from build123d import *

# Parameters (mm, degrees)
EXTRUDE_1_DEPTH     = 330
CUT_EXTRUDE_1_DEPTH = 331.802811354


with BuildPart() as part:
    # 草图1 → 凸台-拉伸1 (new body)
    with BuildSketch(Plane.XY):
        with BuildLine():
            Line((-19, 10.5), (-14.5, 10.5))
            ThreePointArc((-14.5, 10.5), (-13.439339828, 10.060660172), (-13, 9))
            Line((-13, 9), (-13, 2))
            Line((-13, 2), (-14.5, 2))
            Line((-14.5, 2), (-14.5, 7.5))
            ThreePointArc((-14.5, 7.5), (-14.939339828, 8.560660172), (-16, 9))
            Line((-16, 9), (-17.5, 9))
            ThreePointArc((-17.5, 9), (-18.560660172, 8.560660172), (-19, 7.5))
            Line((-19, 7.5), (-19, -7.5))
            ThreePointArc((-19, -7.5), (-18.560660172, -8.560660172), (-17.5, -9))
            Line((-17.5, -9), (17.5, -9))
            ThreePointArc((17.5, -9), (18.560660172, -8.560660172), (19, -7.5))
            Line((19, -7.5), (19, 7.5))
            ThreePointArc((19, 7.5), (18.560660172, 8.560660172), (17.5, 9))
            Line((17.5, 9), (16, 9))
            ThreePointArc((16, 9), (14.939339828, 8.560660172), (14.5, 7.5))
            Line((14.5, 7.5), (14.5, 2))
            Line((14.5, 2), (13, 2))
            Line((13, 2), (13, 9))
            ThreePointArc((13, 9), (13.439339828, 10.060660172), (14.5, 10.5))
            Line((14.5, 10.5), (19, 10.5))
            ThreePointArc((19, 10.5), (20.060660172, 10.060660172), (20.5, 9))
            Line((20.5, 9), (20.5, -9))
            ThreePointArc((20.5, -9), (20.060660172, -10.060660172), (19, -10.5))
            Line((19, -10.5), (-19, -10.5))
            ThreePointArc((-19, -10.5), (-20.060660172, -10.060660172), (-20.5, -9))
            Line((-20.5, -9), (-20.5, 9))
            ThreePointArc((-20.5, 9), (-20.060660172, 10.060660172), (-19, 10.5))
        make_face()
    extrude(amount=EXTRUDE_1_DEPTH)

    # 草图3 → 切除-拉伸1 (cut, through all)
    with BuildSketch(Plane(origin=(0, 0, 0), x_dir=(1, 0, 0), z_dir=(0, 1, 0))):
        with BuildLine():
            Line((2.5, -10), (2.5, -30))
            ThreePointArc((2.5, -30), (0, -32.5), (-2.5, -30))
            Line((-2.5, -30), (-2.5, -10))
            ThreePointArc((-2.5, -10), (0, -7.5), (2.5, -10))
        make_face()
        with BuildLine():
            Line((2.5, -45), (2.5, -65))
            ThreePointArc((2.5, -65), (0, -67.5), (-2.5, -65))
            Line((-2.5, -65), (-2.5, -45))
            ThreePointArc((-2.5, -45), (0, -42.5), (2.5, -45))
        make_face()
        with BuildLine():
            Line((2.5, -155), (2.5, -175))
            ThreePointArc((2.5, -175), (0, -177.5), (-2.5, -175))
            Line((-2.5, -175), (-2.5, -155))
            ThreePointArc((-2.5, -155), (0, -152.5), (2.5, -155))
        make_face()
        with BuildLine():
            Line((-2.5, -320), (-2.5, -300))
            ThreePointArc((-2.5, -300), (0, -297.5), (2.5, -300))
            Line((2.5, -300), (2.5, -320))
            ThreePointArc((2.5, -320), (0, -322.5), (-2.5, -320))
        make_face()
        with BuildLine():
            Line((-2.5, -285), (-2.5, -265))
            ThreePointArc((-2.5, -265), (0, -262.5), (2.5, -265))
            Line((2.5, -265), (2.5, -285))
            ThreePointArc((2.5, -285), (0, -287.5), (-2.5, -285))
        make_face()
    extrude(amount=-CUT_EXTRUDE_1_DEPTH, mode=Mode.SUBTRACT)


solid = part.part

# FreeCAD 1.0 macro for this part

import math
import FreeCAD as App
import Part
import Sketcher

doc = App.newDocument("Part")
body = doc.addObject("PartDesign::Body", "Body")

sketch1 = body.newObject("Sketcher::SketchObject", "Sketch")
sketch1.AttachmentSupport = (doc.getObject("XY_Plane"), [""])
sketch1.MapMode = "FlatFace"
sketch1.addGeometry([
    Part.LineSegment(App.Vector(-14.5, 10.5, 0), App.Vector(-19, 10.5, 0)),
    Part.ArcOfCircle(Part.Circle(App.Vector(-19, 9, 0), App.Vector(0, 0, 1), 1.5), math.radians(90), math.radians(180)),
    Part.LineSegment(App.Vector(-20.5, 9, 0), App.Vector(-20.5, -9, 0)),
    Part.ArcOfCircle(Part.Circle(App.Vector(-19, -9, 0), App.Vector(0, 0, 1), 1.5), math.radians(180), math.radians(270)),
    Part.LineSegment(App.Vector(-19, -10.5, 0), App.Vector(19, -10.5, 0)),
    Part.ArcOfCircle(Part.Circle(App.Vector(19, -9, 0), App.Vector(0, 0, 1), 1.5), math.radians(-90), math.radians(0)),
    Part.LineSegment(App.Vector(20.5, -9, 0), App.Vector(20.5, 9, 0)),
    Part.ArcOfCircle(Part.Circle(App.Vector(19, 9, 0), App.Vector(0, 0, 1), 1.5), math.radians(0), math.radians(90)),
    Part.LineSegment(App.Vector(19, 10.5, 0), App.Vector(14.5, 10.5, 0)),
    Part.ArcOfCircle(Part.Circle(App.Vector(14.5, 9, 0), App.Vector(0, 0, 1), 1.5), math.radians(90), math.radians(180)),
    Part.LineSegment(App.Vector(13, 9, 0), App.Vector(13, 2, 0)),
    Part.LineSegment(App.Vector(13, 2, 0), App.Vector(14.5, 2, 0)),
    Part.LineSegment(App.Vector(14.5, 2, 0), App.Vector(14.5, 7.5, 0)),
    Part.ArcOfCircle(Part.Circle(App.Vector(16, 7.5, 0), App.Vector(0, 0, 1), 1.5), math.radians(90), math.radians(180)),
    Part.LineSegment(App.Vector(16, 9, 0), App.Vector(17.5, 9, 0)),
    Part.ArcOfCircle(Part.Circle(App.Vector(17.5, 7.5, 0), App.Vector(0, 0, 1), 1.5), math.radians(0), math.radians(90)),
    Part.LineSegment(App.Vector(19, 7.5, 0), App.Vector(19, -7.5, 0)),
    Part.ArcOfCircle(Part.Circle(App.Vector(17.5, -7.5, 0), App.Vector(0, 0, 1), 1.5), math.radians(-90), math.radians(0)),
    Part.LineSegment(App.Vector(17.5, -9, 0), App.Vector(-17.5, -9, 0)),
    Part.ArcOfCircle(Part.Circle(App.Vector(-17.5, -7.5, 0), App.Vector(0, 0, 1), 1.5), math.radians(180), math.radians(270)),
    Part.LineSegment(App.Vector(-19, -7.5, 0), App.Vector(-19, 7.5, 0)),
    Part.ArcOfCircle(Part.Circle(App.Vector(-17.5, 7.5, 0), App.Vector(0, 0, 1), 1.5), math.radians(90), math.radians(180)),
    Part.LineSegment(App.Vector(-17.5, 9, 0), App.Vector(-16, 9, 0)),
    Part.ArcOfCircle(Part.Circle(App.Vector(-16, 7.5, 0), App.Vector(0, 0, 1), 1.5), math.radians(0), math.radians(90)),
    Part.LineSegment(App.Vector(-14.5, 7.5, 0), App.Vector(-14.5, 2, 0)),
    Part.LineSegment(App.Vector(-14.5, 2, 0), App.Vector(-13, 2, 0)),
    Part.LineSegment(App.Vector(-13, 2, 0), App.Vector(-13, 9, 0)),
    Part.ArcOfCircle(Part.Circle(App.Vector(-14.5, 9, 0), App.Vector(0, 0, 1), 1.5), math.radians(0), math.radians(90)),
], False)
sketch1.addConstraint([
    Sketcher.Constraint("Tangent", 0, 2, 1, 1),
    Sketcher.Constraint("Tangent", 1, 2, 2, 1),
    Sketcher.Constraint("Tangent", 2, 2, 3, 1),
    Sketcher.Constraint("Tangent", 3, 2, 4, 1),
    Sketcher.Constraint("Tangent", 4, 2, 5, 1),
    Sketcher.Constraint("Tangent", 5, 2, 6, 1),
    Sketcher.Constraint("Tangent", 6, 2, 7, 1),
    Sketcher.Constraint("Tangent", 7, 2, 8, 1),
    Sketcher.Constraint("Tangent", 8, 2, 9, 1),
    Sketcher.Constraint("Tangent", 9, 2, 10, 1),
    Sketcher.Constraint("Coincident", 10, 2, 11, 1),
    Sketcher.Constraint("Coincident", 11, 2, 12, 1),
    Sketcher.Constraint("Tangent", 12, 2, 13, 2),
    Sketcher.Constraint("Tangent", 13, 1, 14, 1),
    Sketcher.Constraint("Tangent", 14, 2, 15, 2),
    Sketcher.Constraint("Tangent", 15, 1, 16, 1),
    Sketcher.Constraint("Tangent", 16, 2, 17, 2),
    Sketcher.Constraint("Tangent", 17, 1, 18, 1),
    Sketcher.Constraint("Tangent", 18, 2, 19, 2),
    Sketcher.Constraint("Tangent", 19, 1, 20, 1),
    Sketcher.Constraint("Tangent", 20, 2, 21, 2),
    Sketcher.Constraint("Tangent", 21, 1, 22, 1),
    Sketcher.Constraint("Tangent", 22, 2, 23, 2),
    Sketcher.Constraint("Tangent", 23, 1, 24, 1),
    Sketcher.Constraint("Coincident", 24, 2, 25, 1),
    Sketcher.Constraint("Coincident", 25, 2, 26, 1),
    Sketcher.Constraint("Tangent", 26, 2, 27, 1),
    Sketcher.Constraint("Tangent", 27, 2, 0, 1),
    Sketcher.Constraint("Horizontal", 0),
    Sketcher.Constraint("Vertical", 2),
    Sketcher.Constraint("Horizontal", 4),
    Sketcher.Constraint("Vertical", 6),
    Sketcher.Constraint("Horizontal", 8),
    Sketcher.Constraint("Vertical", 10),
    Sketcher.Constraint("Horizontal", 11),
    Sketcher.Constraint("Vertical", 12),
    Sketcher.Constraint("Horizontal", 14),
    Sketcher.Constraint("Vertical", 16),
    Sketcher.Constraint("Horizontal", 18),
    Sketcher.Constraint("Vertical", 20),
    Sketcher.Constraint("Horizontal", 22),
    Sketcher.Constraint("Vertical", 24),
    Sketcher.Constraint("Horizontal", 25),
    Sketcher.Constraint("Vertical", 26),
    Sketcher.Constraint("Equal", 1, 3),
    Sketcher.Constraint("Equal", 3, 5),
    Sketcher.Constraint("Equal", 5, 7),
    Sketcher.Constraint("Equal", 7, 9),
    Sketcher.Constraint("Equal", 9, 13),
    Sketcher.Constraint("Equal", 13, 15),
    Sketcher.Constraint("Equal", 15, 17),
    Sketcher.Constraint("Equal", 17, 19),
    Sketcher.Constraint("Equal", 19, 21),
    Sketcher.Constraint("Equal", 21, 23),
    Sketcher.Constraint("Equal", 23, 27),
    Sketcher.Constraint("Symmetric", 1, 3, 5, 3, -1, 1),
    Sketcher.Constraint("Symmetric", 15, 3, 19, 3, -1, 1),
    Sketcher.Constraint("Symmetric", 13, 3, 23, 3, -2),
    Sketcher.Constraint("Symmetric", 9, 3, 27, 3, -2),
    Sketcher.Constraint("Horizontal", 9, 2, 13, 1),
    Sketcher.Constraint("Horizontal", 11, 2, 24, 2),
    Sketcher.Constraint("Vertical", 8, 2, 11, 2),
    Sketcher.Constraint("Vertical", 7, 2, 15, 1),
    Sketcher.Constraint("Equal", 11, 14),
    Sketcher.Constraint("Radius", 1, 1.5),
    Sketcher.Constraint("DistanceX", 4, 1, 4, 2, 38.0),
    Sketcher.Constraint("DistanceY", 2, 2, 2, 1, 18.0),
    Sketcher.Constraint("DistanceY", 10, 2, 10, 1, 7.0),
])
pad1 = body.newObject("PartDesign::Pad", "Pad")
pad1.Profile = sketch1
pad1.Length = 330

sketch2 = body.newObject("Sketcher::SketchObject", "Sketch001")
sketch2.AttachmentSupport = (doc.getObject("XZ_Plane"), [""])
sketch2.MapMode = "FlatFace"
sketch2.addGeometry([
    Part.LineSegment(App.Vector(2.5, 30, 0), App.Vector(2.5, 10, 0)),
    Part.ArcOfCircle(Part.Circle(App.Vector(0, 10, 0), App.Vector(0, 0, 1), 2.5), math.radians(180), math.radians(360)),
    Part.LineSegment(App.Vector(-2.5, 10, 0), App.Vector(-2.5, 30, 0)),
    Part.ArcOfCircle(Part.Circle(App.Vector(0, 30, 0), App.Vector(0, 0, 1), 2.5), math.radians(0), math.radians(180)),
    Part.LineSegment(App.Vector(2.5, 65, 0), App.Vector(2.5, 45, 0)),
    Part.ArcOfCircle(Part.Circle(App.Vector(0, 45, 0), App.Vector(0, 0, 1), 2.5), math.radians(180), math.radians(360)),
    Part.LineSegment(App.Vector(-2.5, 45, 0), App.Vector(-2.5, 65, 0)),
    Part.ArcOfCircle(Part.Circle(App.Vector(0, 65, 0), App.Vector(0, 0, 1), 2.5), math.radians(0), math.radians(180)),
    Part.LineSegment(App.Vector(2.5, 175, 0), App.Vector(2.5, 155, 0)),
    Part.ArcOfCircle(Part.Circle(App.Vector(0, 155, 0), App.Vector(0, 0, 1), 2.5), math.radians(180), math.radians(360)),
    Part.LineSegment(App.Vector(-2.5, 155, 0), App.Vector(-2.5, 175, 0)),
    Part.ArcOfCircle(Part.Circle(App.Vector(0, 175, 0), App.Vector(0, 0, 1), 2.5), math.radians(0), math.radians(180)),
    Part.LineSegment(App.Vector(-2.5, 300, 0), App.Vector(-2.5, 320, 0)),
    Part.ArcOfCircle(Part.Circle(App.Vector(0, 320, 0), App.Vector(0, 0, 1), 2.5), math.radians(0), math.radians(180)),
    Part.LineSegment(App.Vector(2.5, 320, 0), App.Vector(2.5, 300, 0)),
    Part.ArcOfCircle(Part.Circle(App.Vector(0, 300, 0), App.Vector(0, 0, 1), 2.5), math.radians(180), math.radians(360)),
    Part.LineSegment(App.Vector(-2.5, 265, 0), App.Vector(-2.5, 285, 0)),
    Part.ArcOfCircle(Part.Circle(App.Vector(0, 285, 0), App.Vector(0, 0, 1), 2.5), math.radians(0), math.radians(180)),
    Part.LineSegment(App.Vector(2.5, 285, 0), App.Vector(2.5, 265, 0)),
    Part.ArcOfCircle(Part.Circle(App.Vector(0, 265, 0), App.Vector(0, 0, 1), 2.5), math.radians(180), math.radians(360)),
], False)
sketch2.addConstraint([
    Sketcher.Constraint("Tangent", 0, 2, 1, 2),
    Sketcher.Constraint("Tangent", 1, 1, 2, 1),
    Sketcher.Constraint("Tangent", 2, 2, 3, 2),
    Sketcher.Constraint("Tangent", 3, 1, 0, 1),
    Sketcher.Constraint("Tangent", 4, 2, 5, 2),
    Sketcher.Constraint("Tangent", 5, 1, 6, 1),
    Sketcher.Constraint("Tangent", 6, 2, 7, 2),
    Sketcher.Constraint("Tangent", 7, 1, 4, 1),
    Sketcher.Constraint("Tangent", 8, 2, 9, 2),
    Sketcher.Constraint("Tangent", 9, 1, 10, 1),
    Sketcher.Constraint("Tangent", 10, 2, 11, 2),
    Sketcher.Constraint("Tangent", 11, 1, 8, 1),
    Sketcher.Constraint("Tangent", 12, 2, 13, 2),
    Sketcher.Constraint("Tangent", 13, 1, 14, 1),
    Sketcher.Constraint("Tangent", 14, 2, 15, 2),
    Sketcher.Constraint("Tangent", 15, 1, 12, 1),
    Sketcher.Constraint("Tangent", 16, 2, 17, 2),
    Sketcher.Constraint("Tangent", 17, 1, 18, 1),
    Sketcher.Constraint("Tangent", 18, 2, 19, 2),
    Sketcher.Constraint("Tangent", 19, 1, 16, 1),
    Sketcher.Constraint("Vertical", 0),
    Sketcher.Constraint("Vertical", 2),
    Sketcher.Constraint("Vertical", 4),
    Sketcher.Constraint("Vertical", 6),
    Sketcher.Constraint("Vertical", 8),
    Sketcher.Constraint("Vertical", 10),
    Sketcher.Constraint("Vertical", 12),
    Sketcher.Constraint("Vertical", 14),
    Sketcher.Constraint("Vertical", 16),
    Sketcher.Constraint("Vertical", 18),
    Sketcher.Constraint("Equal", 3, 5),
    Sketcher.Constraint("Equal", 7, 9),
    Sketcher.Constraint("Equal", 11, 13),
    Sketcher.Constraint("Equal", 15, 17),
    Sketcher.Constraint("PointOnObject", 1, 3, -2),
    Sketcher.Constraint("PointOnObject", 5, 3, -2),
    Sketcher.Constraint("PointOnObject", 9, 3, -2),
    Sketcher.Constraint("PointOnObject", 13, 3, -2),
    Sketcher.Constraint("PointOnObject", 17, 3, -2),
    Sketcher.Constraint("Equal", 2, 4),
    Sketcher.Constraint("Equal", 6, 8),
    Sketcher.Constraint("Equal", 10, 12),
    Sketcher.Constraint("Equal", 14, 16),
    Sketcher.Constraint("Radius", 1, 2.5),
    Sketcher.Constraint("DistanceY", 0, 2, 0, 1, 20.0),
    Sketcher.Constraint("DistanceY", -1, 1, 1, 3, 10.0),
    Sketcher.Constraint("DistanceY", -1, 1, 5, 3, 45.0),
    Sketcher.Constraint("DistanceY", -1, 1, 9, 3, 155.0),
    Sketcher.Constraint("DistanceY", -1, 1, 13, 3, 320.0),
    Sketcher.Constraint("DistanceY", -1, 1, 17, 3, 285.0),
])
pocket1 = body.newObject("PartDesign::Pocket", "Pocket")
pocket1.Profile = sketch2
pocket1.Type = "ThroughAll"
pocket1.Reversed = True

doc.recompute()
